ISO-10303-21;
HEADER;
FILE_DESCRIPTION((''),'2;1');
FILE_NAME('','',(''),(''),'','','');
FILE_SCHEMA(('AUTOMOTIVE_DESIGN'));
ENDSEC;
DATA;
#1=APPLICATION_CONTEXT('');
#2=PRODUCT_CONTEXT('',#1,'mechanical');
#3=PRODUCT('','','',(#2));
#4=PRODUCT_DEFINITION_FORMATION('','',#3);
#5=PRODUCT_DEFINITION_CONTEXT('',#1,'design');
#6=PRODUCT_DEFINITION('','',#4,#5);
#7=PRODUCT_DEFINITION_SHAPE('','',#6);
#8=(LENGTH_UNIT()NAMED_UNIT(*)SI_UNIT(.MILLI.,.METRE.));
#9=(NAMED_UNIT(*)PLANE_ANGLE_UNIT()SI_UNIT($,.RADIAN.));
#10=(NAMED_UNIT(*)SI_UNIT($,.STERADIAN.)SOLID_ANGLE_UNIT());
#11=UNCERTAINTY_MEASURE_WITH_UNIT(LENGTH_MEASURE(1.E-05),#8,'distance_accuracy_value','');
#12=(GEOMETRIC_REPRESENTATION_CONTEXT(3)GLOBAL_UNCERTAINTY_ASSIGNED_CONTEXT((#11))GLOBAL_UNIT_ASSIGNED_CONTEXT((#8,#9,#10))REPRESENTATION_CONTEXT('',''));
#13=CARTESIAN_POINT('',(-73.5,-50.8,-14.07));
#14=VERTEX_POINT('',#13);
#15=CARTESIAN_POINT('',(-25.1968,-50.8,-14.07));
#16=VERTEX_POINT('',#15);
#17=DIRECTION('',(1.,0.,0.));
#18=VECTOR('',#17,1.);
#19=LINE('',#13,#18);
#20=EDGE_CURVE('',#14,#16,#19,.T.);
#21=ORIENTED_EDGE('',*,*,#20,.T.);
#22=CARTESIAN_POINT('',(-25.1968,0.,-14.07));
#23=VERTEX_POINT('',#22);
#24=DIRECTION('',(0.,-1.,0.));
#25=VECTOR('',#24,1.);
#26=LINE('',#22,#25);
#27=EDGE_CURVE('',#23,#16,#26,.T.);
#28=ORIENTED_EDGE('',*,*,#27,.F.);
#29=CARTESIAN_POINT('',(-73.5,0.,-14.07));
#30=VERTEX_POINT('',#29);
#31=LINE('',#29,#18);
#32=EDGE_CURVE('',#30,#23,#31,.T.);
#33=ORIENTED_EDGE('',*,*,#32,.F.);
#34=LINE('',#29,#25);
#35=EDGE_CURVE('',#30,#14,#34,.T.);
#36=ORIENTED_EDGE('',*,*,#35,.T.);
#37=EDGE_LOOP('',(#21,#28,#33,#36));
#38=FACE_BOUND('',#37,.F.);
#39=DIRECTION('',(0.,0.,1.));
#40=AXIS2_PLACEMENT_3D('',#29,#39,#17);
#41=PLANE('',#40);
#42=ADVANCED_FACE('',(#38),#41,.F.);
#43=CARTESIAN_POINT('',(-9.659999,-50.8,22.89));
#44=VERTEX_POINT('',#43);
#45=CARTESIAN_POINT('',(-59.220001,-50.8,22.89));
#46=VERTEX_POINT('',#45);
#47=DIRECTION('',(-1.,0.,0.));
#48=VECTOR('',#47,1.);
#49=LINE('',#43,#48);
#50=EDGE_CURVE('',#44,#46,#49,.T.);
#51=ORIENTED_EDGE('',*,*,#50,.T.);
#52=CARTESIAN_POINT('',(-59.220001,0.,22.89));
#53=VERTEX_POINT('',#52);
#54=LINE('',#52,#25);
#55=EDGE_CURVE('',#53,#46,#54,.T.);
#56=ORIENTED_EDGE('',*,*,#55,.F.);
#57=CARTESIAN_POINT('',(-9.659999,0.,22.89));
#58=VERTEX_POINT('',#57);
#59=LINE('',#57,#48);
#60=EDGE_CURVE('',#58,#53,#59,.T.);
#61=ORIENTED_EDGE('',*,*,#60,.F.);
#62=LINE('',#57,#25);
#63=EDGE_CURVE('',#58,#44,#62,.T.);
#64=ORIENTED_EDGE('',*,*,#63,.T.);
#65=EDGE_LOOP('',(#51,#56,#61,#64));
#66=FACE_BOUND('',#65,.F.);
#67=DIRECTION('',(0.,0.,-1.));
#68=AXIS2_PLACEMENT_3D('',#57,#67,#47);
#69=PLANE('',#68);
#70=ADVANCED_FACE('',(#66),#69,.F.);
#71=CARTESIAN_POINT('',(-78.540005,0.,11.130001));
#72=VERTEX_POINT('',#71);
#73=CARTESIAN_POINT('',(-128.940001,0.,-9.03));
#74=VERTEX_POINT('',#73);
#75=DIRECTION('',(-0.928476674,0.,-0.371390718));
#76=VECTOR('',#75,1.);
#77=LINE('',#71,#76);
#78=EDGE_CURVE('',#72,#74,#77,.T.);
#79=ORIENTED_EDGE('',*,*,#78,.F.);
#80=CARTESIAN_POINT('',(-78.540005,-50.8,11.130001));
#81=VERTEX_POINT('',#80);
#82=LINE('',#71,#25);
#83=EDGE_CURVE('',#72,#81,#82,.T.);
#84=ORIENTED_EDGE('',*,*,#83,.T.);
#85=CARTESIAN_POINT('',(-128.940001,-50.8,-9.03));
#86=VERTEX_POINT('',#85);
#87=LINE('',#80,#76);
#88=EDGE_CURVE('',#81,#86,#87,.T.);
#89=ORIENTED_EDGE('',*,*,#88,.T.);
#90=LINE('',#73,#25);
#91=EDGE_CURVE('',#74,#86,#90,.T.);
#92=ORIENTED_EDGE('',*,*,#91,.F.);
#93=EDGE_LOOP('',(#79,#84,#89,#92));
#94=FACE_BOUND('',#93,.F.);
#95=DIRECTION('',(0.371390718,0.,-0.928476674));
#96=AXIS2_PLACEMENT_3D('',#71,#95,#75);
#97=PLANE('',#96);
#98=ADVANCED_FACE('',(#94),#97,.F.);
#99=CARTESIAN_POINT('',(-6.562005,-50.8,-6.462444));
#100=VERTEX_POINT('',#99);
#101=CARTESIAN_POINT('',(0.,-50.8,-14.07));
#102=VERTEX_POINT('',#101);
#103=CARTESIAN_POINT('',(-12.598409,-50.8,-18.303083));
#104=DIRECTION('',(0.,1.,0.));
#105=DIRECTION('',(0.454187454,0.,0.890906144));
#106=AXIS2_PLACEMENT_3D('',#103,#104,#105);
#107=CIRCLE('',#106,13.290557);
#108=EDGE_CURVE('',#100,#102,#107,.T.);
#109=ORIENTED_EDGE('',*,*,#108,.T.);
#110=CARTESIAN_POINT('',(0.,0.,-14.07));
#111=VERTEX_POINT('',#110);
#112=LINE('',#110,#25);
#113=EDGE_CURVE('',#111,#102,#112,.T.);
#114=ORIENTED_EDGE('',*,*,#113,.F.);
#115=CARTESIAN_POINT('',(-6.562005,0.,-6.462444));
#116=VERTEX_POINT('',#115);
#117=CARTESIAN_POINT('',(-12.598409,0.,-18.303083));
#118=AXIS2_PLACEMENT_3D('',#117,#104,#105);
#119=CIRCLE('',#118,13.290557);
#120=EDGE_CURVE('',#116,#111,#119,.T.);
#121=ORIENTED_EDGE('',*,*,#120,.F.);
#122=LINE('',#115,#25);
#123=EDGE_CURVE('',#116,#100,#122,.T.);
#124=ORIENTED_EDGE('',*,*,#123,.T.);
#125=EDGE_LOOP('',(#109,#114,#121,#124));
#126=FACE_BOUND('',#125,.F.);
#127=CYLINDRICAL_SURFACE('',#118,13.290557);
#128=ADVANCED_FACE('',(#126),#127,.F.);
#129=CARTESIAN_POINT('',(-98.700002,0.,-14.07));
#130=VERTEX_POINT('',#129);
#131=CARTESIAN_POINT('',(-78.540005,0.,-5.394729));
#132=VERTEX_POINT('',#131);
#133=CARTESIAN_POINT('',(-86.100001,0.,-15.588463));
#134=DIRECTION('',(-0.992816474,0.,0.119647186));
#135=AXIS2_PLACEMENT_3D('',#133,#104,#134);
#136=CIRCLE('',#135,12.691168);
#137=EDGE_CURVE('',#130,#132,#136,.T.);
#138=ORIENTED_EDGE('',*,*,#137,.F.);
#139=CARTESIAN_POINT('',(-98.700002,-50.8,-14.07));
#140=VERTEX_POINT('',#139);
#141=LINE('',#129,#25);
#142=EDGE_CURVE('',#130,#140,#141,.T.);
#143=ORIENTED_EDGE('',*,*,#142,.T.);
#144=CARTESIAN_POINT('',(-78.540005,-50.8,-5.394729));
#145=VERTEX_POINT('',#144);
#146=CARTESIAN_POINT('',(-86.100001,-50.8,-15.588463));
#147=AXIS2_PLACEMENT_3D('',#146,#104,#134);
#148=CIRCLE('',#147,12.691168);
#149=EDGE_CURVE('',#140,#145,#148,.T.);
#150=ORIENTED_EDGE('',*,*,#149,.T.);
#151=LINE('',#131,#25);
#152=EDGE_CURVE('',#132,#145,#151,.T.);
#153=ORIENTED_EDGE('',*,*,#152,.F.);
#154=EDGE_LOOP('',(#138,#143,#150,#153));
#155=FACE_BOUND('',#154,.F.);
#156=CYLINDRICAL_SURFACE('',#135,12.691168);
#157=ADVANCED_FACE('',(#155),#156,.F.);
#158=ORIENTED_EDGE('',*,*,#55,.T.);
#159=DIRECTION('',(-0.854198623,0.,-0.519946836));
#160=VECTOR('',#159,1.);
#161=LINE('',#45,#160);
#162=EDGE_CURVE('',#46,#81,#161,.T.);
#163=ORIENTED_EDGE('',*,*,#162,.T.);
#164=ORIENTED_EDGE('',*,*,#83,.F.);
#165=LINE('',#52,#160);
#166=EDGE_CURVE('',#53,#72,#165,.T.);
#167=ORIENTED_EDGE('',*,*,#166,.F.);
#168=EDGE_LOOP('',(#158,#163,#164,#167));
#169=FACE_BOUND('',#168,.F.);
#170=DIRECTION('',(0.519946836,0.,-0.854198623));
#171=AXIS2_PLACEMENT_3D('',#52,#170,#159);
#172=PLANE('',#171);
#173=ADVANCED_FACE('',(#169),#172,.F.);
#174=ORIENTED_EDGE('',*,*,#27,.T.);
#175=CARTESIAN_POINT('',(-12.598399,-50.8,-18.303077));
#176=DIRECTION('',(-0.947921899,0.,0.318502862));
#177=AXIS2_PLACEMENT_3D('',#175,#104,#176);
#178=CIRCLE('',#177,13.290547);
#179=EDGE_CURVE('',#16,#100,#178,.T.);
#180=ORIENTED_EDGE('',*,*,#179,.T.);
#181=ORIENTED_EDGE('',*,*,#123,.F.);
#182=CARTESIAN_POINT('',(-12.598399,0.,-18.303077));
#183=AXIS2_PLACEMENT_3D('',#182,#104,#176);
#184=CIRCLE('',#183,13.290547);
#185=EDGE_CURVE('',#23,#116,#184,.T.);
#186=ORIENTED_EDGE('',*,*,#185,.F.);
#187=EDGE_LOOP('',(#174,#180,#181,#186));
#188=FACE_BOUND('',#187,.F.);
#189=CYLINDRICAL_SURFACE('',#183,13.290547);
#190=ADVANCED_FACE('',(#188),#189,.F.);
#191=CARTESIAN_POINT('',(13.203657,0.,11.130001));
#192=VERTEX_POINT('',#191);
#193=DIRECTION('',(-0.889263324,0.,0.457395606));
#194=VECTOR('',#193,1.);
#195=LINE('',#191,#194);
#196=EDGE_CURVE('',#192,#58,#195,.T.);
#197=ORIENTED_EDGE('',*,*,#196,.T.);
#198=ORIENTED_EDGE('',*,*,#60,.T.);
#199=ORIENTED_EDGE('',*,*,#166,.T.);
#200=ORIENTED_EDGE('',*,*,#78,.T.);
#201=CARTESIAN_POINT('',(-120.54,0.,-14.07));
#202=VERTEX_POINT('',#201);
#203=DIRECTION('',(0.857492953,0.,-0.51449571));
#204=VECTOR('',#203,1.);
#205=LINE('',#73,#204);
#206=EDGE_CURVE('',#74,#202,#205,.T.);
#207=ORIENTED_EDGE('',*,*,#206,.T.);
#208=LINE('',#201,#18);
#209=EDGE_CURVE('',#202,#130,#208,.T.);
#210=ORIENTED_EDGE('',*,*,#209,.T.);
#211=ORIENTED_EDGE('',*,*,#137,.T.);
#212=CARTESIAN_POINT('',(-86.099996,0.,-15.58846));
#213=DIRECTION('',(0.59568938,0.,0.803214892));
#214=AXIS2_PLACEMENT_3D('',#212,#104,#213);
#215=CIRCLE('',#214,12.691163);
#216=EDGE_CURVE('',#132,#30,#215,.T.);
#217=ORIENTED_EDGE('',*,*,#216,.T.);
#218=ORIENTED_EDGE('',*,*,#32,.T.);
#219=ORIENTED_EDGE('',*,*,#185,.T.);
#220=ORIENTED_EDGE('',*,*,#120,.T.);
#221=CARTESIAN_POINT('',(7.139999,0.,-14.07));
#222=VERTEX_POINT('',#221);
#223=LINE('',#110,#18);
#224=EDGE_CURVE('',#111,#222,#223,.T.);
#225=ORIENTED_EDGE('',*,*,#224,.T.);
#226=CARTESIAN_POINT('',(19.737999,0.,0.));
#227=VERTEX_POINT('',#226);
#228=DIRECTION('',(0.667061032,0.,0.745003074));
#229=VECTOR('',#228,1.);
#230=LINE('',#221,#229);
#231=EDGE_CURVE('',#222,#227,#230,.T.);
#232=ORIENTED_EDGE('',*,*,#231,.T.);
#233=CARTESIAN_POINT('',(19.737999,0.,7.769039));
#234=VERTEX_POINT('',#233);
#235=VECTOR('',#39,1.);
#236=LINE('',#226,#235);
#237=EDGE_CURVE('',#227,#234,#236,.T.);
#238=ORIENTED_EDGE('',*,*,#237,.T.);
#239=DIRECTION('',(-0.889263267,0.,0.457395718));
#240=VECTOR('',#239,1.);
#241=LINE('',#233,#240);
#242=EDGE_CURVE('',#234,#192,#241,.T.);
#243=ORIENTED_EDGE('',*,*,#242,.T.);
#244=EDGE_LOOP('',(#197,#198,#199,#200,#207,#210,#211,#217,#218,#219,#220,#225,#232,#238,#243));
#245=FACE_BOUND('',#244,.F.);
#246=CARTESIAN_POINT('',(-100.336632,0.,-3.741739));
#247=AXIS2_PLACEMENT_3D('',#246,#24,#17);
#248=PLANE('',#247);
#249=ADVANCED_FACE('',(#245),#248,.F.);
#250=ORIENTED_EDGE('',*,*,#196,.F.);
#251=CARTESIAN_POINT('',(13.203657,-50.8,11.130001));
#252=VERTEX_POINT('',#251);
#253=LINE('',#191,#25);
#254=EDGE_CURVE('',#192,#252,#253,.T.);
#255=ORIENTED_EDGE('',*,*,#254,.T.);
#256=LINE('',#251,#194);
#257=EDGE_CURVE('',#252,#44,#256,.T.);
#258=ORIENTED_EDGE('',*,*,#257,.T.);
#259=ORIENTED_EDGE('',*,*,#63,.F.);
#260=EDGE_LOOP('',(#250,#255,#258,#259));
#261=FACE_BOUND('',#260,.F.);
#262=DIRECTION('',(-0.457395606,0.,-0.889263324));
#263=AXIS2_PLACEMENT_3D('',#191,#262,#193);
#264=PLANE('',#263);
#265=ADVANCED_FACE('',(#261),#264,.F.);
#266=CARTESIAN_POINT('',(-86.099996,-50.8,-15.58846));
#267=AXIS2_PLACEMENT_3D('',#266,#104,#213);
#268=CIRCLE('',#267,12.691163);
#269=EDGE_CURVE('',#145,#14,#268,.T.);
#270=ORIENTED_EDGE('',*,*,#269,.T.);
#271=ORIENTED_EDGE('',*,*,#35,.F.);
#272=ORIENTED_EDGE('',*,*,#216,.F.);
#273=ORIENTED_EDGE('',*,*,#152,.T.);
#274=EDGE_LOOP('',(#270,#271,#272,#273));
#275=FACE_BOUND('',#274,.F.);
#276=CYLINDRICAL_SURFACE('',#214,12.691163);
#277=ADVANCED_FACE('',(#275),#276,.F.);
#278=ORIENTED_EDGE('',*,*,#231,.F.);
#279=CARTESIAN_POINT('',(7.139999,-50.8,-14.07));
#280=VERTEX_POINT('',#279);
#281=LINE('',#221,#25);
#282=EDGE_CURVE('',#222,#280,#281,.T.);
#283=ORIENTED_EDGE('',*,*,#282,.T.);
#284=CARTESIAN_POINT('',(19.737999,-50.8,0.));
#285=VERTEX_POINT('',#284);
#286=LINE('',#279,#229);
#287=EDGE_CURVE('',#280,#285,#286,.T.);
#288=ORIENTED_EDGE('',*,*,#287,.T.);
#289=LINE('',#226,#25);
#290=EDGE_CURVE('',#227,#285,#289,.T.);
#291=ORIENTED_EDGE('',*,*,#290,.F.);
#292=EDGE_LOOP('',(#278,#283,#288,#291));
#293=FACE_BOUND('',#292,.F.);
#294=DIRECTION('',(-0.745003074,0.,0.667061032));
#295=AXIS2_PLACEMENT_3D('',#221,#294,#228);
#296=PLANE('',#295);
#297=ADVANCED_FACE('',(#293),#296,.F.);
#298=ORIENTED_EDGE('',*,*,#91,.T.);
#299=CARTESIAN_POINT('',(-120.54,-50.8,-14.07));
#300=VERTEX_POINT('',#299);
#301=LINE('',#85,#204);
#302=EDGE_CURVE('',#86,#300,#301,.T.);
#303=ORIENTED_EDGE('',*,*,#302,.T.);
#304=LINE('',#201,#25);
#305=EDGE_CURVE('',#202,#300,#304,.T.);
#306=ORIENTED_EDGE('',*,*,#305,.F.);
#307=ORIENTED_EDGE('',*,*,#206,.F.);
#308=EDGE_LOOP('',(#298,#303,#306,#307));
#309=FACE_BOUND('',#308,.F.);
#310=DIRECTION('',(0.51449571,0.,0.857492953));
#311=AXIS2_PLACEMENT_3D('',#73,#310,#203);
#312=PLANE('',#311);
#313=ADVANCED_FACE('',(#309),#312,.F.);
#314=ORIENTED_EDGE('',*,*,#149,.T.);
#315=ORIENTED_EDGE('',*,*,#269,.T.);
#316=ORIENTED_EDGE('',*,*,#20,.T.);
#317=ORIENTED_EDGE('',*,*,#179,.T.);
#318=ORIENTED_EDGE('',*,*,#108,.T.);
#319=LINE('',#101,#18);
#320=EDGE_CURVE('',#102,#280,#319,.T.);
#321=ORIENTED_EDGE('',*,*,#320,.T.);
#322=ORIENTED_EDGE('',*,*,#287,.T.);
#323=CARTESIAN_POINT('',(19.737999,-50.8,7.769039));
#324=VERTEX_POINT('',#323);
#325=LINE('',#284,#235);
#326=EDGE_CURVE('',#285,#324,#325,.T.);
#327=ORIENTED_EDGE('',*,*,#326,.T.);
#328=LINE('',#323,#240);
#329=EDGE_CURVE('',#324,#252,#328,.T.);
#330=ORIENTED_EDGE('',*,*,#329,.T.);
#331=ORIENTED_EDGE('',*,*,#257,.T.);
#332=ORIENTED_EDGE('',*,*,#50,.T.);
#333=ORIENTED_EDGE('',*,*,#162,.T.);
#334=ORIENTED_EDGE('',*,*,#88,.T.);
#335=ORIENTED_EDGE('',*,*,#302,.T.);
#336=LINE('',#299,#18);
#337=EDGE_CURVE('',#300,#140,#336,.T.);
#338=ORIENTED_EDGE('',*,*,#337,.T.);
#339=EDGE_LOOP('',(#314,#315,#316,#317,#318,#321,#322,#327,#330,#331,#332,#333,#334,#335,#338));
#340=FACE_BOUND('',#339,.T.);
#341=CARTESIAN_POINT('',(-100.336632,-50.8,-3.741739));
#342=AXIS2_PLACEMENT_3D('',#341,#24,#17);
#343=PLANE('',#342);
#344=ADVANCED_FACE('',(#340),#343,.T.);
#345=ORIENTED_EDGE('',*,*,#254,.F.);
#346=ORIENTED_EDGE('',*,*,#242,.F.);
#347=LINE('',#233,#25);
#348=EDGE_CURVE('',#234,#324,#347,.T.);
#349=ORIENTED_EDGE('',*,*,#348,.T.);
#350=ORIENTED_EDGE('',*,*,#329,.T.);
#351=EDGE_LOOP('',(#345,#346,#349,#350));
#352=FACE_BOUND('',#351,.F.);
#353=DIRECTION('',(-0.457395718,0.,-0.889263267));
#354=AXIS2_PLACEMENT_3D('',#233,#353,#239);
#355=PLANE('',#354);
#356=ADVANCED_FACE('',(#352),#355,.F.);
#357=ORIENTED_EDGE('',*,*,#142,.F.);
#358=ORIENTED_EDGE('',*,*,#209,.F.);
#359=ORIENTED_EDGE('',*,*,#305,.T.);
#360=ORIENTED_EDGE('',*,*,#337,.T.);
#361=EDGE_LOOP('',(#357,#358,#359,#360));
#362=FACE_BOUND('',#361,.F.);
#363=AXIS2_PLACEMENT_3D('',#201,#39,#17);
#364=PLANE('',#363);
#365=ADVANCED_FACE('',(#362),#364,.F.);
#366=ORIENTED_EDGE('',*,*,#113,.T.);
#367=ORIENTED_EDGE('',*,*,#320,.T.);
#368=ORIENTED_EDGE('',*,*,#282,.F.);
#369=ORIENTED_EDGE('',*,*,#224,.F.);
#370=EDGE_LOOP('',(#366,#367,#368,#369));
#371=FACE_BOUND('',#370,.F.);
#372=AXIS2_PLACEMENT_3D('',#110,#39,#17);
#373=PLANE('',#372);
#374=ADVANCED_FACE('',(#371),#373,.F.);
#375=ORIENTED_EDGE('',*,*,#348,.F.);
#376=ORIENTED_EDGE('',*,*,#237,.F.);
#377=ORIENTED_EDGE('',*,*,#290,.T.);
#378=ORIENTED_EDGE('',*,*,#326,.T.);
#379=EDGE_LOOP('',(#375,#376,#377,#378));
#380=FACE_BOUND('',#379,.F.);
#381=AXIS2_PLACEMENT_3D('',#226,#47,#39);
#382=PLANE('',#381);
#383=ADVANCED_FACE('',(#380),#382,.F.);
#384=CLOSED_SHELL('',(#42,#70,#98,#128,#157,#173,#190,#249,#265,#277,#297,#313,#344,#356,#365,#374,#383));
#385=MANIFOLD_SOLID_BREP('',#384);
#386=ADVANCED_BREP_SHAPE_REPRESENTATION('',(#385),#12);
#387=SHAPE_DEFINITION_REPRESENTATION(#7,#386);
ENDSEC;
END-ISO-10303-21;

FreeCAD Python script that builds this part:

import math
import FreeCAD as App
import Part
import Sketcher

V = App.Vector
Q = App.Units.Quantity

doc = App.newDocument("Part")
body = doc.addObject("PartDesign::Body", "Body")

# Sketch on XZ plane
sketch1 = body.newObject("Sketcher::SketchObject", "Sketch")
sketch1.AttachmentSupport = (doc.getObject("XZ_Plane"), [""])
sketch1.MapMode = "FlatFace"
sketch1.addGeometry(Part.LineSegment(V(-128.940001, -9.03, 0), V(-120.54, -14.07, 0)), False)
sketch1.addGeometry(Part.LineSegment(V(-120.54, -14.07, 0), V(-98.700002, -14.07, 0)), False)
sketch1.addGeometry(Part.ArcOfCircle(Part.Circle(V(-86.100001, -15.588463, 0), V(0, 0, 1), 12.691168), math.radians(53.438195), math.radians(173.128259)), False)
sketch1.addGeometry(Part.ArcOfCircle(Part.Circle(V(-86.099996, -15.58846, 0), V(0, 0, 1), 12.691163), math.radians(6.871734), math.radians(53.438208)), False)
sketch1.addGeometry(Part.LineSegment(V(-73.5, -14.07, 0), V(-25.1968, -14.07, 0)), False)
sketch1.addGeometry(Part.ArcOfCircle(Part.Circle(V(-12.598399, -18.303077, 0), V(0, 0, 1), 13.290547), math.radians(62.987363), math.radians(161.427592)), False)
sketch1.addGeometry(Part.ArcOfCircle(Part.Circle(V(-12.598409, -18.303083, 0), V(0, 0, 1), 13.290557), math.radians(18.57242), math.radians(62.987334)), False)
sketch1.addGeometry(Part.LineSegment(V(0, -14.07, 0), V(7.139999, -14.07, 0)), False)
sketch1.addGeometry(Part.LineSegment(V(7.139999, -14.07, 0), V(19.737999, 0, 0)), False)
sketch1.addGeometry(Part.LineSegment(V(19.737999, 0, 0), V(19.737999, 7.769039, 0)), False)
sketch1.addGeometry(Part.LineSegment(V(19.737999, 7.769039, 0), V(13.203657, 11.130001, 0)), False)
sketch1.addGeometry(Part.LineSegment(V(13.203657, 11.130001, 0), V(-9.659999, 22.89, 0)), False)
sketch1.addGeometry(Part.LineSegment(V(-9.659999, 22.89, 0), V(-59.220001, 22.89, 0)), False)
sketch1.addGeometry(Part.LineSegment(V(-59.220001, 22.89, 0), V(-78.540005, 11.130001, 0)), False)
sketch1.addGeometry(Part.LineSegment(V(-78.540005, 11.130001, 0), V(-128.940001, -9.03, 0)), False)
sketch1.addConstraint(Sketcher.Constraint("Coincident", 0, 2, 1, 1))
sketch1.addConstraint(Sketcher.Constraint("Coincident", 1, 2, 2, 2))
sketch1.addConstraint(Sketcher.Constraint("Coincident", 2, 1, 3, 2))
sketch1.addConstraint(Sketcher.Constraint("Coincident", 3, 1, 4, 1))
sketch1.addConstraint(Sketcher.Constraint("Coincident", 4, 2, 5, 2))
sketch1.addConstraint(Sketcher.Constraint("Coincident", 5, 1, 6, 2))
sketch1.addConstraint(Sketcher.Constraint("Coincident", 6, 1, 7, 1))
sketch1.addConstraint(Sketcher.Constraint("Coincident", 7, 2, 8, 1))
sketch1.addConstraint(Sketcher.Constraint("Coincident", 8, 2, 9, 1))
sketch1.addConstraint(Sketcher.Constraint("Coincident", 9, 2, 10, 1))
sketch1.addConstraint(Sketcher.Constraint("Coincident", 10, 2, 11, 1))
sketch1.addConstraint(Sketcher.Constraint("Coincident", 11, 2, 12, 1))
sketch1.addConstraint(Sketcher.Constraint("Coincident", 12, 2, 13, 1))
sketch1.addConstraint(Sketcher.Constraint("Coincident", 13, 2, 14, 1))
sketch1.addConstraint(Sketcher.Constraint("Coincident", 14, 2, 0, 1))
sketch1.addConstraint(Sketcher.Constraint("Horizontal", 1))
sketch1.addConstraint(Sketcher.Constraint("Horizontal", 4))
sketch1.addConstraint(Sketcher.Constraint("Horizontal", 7))
sketch1.addConstraint(Sketcher.Constraint("Vertical", 9))
sketch1.addConstraint(Sketcher.Constraint("Horizontal", 12))
sketch1.addConstraint(Sketcher.Constraint("Coincident", 3, 3, 2, 3))
sketch1.addConstraint(Sketcher.Constraint("PointOnObject", 6, 1, -2))
sketch1.addConstraint(Sketcher.Constraint("PointOnObject", 8, 2, -1))
sketch1.addConstraint(Sketcher.Constraint("DistanceX", 5, 3, -1, 1, Q("0.496 in")))
sketch1.addConstraint(Sketcher.Constraint("DistanceX", 4, 2, -1, 1, Q("0.992 in")))
sketch1.addConstraint(Sketcher.Constraint("Radius", 2, 12.691168))
sketch1.addConstraint(Sketcher.Constraint("DistanceX", 1, 1, 1, 2, 21.839998))
sketch1.addConstraint(Sketcher.Constraint("DistanceX", 4, 1, 4, 2, 48.3032))
sketch1.addConstraint(Sketcher.Constraint("DistanceX", 7, 1, 7, 2, 7.139999))
sketch1.addConstraint(Sketcher.Constraint("Radius", 5, 13.290547))
sketch1.addConstraint(Sketcher.Constraint("Radius", 6, 13.290557))
sketch1.addConstraint(Sketcher.Constraint("DistanceY", 3, 3, 12, 2, Q("1.5149 in")))
sketch1.addConstraint(Sketcher.Constraint("Distance", 0, 9.796))
sketch1.addConstraint(Sketcher.Constraint("DistanceY", 9, 1, 9, 2, 7.769039))
sketch1.addConstraint(Sketcher.Constraint("DistanceX", 2, 3, -1, 1, 86.100001))
sketch1.addConstraint(Sketcher.Constraint("DistanceX", 0, 2, -1, 1, 120.54))
sketch1.addConstraint(Sketcher.Constraint("DistanceY", 0, 2, -1, 1, 14.07))
sketch1.addConstraint(Sketcher.Constraint("DistanceY", 6, 1, -1, 1, 14.07))
sketch1.addConstraint(Sketcher.Constraint("DistanceX", -1, 1, 8, 2, 19.737999))
sketch1.addConstraint(Sketcher.Constraint("DistanceY", -1, 1, 10, 2, 11.130001))
sketch1.addConstraint(Sketcher.Constraint("DistanceX", 11, 2, -1, 1, 9.659999))
sketch1.addConstraint(Sketcher.Constraint("DistanceX", 12, 2, -1, 1, 59.220001))
sketch1.addConstraint(Sketcher.Constraint("DistanceY", -1, 1, 13, 2, 11.130001))
sketch1.addConstraint(Sketcher.Constraint("DistanceX", 14, 2, -1, 1, 128.940001))
sketch1.addConstraint(Sketcher.Constraint("DistanceX", 2, 1, 5, 1, 71.978))
sketch1.addConstraint(Sketcher.Constraint("Distance", 10, 7.34804))
sketch1.addConstraint(Sketcher.Constraint("DistanceY", 2, 1, -1, 1, 5.394729))
sketch1.addConstraint(Sketcher.Constraint("DistanceX", 3, 3, 13, 2, 7.559991))
pad1 = body.newObject("PartDesign::Pad", "Pad")
pad1.Profile = sketch1
pad1.Length = Q("2 in")

doc.recompute()
